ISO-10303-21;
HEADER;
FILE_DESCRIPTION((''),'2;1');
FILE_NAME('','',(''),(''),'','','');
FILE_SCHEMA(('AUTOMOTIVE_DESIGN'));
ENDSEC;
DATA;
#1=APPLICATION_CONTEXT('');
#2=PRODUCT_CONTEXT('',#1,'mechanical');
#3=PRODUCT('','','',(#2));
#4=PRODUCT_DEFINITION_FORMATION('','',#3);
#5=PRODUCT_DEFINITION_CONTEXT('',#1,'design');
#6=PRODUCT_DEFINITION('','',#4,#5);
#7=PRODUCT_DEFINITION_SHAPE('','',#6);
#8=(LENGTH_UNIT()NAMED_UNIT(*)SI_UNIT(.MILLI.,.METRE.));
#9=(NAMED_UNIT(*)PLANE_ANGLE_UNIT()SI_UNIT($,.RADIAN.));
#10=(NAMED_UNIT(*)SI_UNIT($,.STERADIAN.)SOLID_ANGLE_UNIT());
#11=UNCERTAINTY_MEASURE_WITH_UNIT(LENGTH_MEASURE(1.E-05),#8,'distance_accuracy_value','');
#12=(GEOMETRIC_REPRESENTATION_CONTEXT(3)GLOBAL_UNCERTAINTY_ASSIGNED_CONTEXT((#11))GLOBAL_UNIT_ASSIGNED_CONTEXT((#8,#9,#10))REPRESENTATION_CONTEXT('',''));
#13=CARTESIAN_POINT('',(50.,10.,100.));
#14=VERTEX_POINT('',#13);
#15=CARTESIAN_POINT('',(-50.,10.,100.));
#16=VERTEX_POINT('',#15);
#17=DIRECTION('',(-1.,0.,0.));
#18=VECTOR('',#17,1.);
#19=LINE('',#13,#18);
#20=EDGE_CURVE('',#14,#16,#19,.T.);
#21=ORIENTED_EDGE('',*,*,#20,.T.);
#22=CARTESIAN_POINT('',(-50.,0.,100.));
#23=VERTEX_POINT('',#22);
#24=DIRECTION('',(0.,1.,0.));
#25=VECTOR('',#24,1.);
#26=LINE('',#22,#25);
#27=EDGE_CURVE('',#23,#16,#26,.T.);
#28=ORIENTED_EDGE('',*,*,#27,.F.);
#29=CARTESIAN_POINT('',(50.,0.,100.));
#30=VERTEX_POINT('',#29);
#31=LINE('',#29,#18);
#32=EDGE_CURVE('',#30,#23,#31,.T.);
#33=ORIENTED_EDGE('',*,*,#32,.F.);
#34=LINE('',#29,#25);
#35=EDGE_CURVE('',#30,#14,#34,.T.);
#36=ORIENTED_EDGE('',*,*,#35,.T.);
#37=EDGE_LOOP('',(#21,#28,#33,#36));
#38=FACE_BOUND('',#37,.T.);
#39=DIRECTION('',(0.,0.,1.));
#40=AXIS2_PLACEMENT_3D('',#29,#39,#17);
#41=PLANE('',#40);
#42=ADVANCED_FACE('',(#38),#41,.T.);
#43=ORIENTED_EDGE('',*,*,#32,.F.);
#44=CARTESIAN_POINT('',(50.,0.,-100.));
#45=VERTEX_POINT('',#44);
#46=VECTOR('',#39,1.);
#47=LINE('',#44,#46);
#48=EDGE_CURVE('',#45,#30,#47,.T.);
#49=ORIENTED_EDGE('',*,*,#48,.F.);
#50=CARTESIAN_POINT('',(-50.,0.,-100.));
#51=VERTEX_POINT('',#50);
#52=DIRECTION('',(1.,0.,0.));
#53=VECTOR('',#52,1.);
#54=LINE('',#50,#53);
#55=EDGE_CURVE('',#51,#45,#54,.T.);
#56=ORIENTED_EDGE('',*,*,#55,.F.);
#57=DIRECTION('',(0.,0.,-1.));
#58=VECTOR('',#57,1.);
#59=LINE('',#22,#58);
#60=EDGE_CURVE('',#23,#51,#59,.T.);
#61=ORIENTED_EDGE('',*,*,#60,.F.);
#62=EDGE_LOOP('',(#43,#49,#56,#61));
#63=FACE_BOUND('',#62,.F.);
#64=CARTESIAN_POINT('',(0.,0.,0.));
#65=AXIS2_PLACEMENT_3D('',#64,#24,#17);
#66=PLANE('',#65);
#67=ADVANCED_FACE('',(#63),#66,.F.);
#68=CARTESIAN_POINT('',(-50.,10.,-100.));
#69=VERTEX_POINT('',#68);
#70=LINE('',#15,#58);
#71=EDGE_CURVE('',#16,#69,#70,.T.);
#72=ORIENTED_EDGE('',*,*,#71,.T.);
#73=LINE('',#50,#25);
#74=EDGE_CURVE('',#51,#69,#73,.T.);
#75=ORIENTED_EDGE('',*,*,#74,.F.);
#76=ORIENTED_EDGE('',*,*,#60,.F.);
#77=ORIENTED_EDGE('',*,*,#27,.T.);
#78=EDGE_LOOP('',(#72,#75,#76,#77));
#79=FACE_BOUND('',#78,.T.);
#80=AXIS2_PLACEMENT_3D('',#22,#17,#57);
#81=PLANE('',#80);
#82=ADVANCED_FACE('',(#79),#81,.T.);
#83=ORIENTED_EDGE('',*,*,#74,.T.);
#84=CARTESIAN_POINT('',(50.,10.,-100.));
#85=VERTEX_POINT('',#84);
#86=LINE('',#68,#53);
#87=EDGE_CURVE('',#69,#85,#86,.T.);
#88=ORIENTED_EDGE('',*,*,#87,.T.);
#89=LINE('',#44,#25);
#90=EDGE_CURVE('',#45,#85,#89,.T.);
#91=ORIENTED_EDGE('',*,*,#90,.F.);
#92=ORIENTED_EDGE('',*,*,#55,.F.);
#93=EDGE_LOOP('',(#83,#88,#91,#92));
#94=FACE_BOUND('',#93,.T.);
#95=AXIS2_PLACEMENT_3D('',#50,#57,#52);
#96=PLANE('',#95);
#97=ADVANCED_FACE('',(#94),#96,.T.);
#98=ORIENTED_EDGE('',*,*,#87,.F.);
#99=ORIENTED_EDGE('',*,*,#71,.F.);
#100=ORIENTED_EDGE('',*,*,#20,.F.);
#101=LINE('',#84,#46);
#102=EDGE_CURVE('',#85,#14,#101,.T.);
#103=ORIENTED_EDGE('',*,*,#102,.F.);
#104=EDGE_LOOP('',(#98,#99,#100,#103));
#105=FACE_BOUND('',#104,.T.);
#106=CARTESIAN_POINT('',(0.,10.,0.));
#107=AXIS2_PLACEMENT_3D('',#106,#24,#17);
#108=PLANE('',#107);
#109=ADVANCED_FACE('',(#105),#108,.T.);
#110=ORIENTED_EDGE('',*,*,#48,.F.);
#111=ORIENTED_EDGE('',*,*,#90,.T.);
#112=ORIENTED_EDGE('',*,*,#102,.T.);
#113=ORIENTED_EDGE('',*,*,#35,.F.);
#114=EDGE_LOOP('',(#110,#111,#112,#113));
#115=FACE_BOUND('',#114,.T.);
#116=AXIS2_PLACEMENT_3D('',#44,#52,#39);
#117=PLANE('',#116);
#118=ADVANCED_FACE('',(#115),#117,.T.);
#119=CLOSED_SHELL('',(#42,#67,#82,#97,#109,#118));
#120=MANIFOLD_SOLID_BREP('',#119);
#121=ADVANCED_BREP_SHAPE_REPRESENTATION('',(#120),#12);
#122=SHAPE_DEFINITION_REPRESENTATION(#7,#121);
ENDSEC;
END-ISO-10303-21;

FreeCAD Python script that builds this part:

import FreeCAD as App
import Part
import Sketcher
from FreeCAD import Vector
Q = App.Units.Quantity

doc = App.newDocument("Part")
body = doc.addObject("PartDesign::Body", "Body")

sketch1 = doc.addObject("Sketcher::SketchObject", "Sketch")
body.addObject(sketch1)
sketch1.AttachmentSupport = (doc.XZ_Plane, [""])
sketch1.MapMode = "FlatFace"
sketch1.addGeometry([
    Part.LineSegment(Vector(-50, 100, 0), Vector(50, 100, 0)),
    Part.LineSegment(Vector(50, 100, 0), Vector(50, -100, 0)),
    Part.LineSegment(Vector(50, -100, 0), Vector(-50, -100, 0)),
    Part.LineSegment(Vector(-50, -100, 0), Vector(-50, 100, 0)),
], False)
sketch1.addConstraint([
    Sketcher.Constraint("Coincident", 0, 2, 1, 1),
    Sketcher.Constraint("Coincident", 1, 2, 2, 1),
    Sketcher.Constraint("Coincident", 2, 2, 3, 1),
    Sketcher.Constraint("Coincident", 3, 2, 0, 1),
    Sketcher.Constraint("Horizontal", 0),
    Sketcher.Constraint("Vertical", 1),
    Sketcher.Constraint("Horizontal", 2),
    Sketcher.Constraint("Vertical", 3),
    Sketcher.Constraint("Symmetric", 0, 2, 2, 2, -1, 1),
    Sketcher.Constraint("DistanceX", 0, 1, 0, 2, Q("100 mm")),
    Sketcher.Constraint("DistanceY", 1, 2, 1, 1, Q("200 mm")),
])
pad1 = doc.addObject("PartDesign::Pad", "Pad")
body.addObject(pad1)
pad1.Profile = sketch1
pad1.Length = 10
pad1.Reversed = True

doc.recompute()
